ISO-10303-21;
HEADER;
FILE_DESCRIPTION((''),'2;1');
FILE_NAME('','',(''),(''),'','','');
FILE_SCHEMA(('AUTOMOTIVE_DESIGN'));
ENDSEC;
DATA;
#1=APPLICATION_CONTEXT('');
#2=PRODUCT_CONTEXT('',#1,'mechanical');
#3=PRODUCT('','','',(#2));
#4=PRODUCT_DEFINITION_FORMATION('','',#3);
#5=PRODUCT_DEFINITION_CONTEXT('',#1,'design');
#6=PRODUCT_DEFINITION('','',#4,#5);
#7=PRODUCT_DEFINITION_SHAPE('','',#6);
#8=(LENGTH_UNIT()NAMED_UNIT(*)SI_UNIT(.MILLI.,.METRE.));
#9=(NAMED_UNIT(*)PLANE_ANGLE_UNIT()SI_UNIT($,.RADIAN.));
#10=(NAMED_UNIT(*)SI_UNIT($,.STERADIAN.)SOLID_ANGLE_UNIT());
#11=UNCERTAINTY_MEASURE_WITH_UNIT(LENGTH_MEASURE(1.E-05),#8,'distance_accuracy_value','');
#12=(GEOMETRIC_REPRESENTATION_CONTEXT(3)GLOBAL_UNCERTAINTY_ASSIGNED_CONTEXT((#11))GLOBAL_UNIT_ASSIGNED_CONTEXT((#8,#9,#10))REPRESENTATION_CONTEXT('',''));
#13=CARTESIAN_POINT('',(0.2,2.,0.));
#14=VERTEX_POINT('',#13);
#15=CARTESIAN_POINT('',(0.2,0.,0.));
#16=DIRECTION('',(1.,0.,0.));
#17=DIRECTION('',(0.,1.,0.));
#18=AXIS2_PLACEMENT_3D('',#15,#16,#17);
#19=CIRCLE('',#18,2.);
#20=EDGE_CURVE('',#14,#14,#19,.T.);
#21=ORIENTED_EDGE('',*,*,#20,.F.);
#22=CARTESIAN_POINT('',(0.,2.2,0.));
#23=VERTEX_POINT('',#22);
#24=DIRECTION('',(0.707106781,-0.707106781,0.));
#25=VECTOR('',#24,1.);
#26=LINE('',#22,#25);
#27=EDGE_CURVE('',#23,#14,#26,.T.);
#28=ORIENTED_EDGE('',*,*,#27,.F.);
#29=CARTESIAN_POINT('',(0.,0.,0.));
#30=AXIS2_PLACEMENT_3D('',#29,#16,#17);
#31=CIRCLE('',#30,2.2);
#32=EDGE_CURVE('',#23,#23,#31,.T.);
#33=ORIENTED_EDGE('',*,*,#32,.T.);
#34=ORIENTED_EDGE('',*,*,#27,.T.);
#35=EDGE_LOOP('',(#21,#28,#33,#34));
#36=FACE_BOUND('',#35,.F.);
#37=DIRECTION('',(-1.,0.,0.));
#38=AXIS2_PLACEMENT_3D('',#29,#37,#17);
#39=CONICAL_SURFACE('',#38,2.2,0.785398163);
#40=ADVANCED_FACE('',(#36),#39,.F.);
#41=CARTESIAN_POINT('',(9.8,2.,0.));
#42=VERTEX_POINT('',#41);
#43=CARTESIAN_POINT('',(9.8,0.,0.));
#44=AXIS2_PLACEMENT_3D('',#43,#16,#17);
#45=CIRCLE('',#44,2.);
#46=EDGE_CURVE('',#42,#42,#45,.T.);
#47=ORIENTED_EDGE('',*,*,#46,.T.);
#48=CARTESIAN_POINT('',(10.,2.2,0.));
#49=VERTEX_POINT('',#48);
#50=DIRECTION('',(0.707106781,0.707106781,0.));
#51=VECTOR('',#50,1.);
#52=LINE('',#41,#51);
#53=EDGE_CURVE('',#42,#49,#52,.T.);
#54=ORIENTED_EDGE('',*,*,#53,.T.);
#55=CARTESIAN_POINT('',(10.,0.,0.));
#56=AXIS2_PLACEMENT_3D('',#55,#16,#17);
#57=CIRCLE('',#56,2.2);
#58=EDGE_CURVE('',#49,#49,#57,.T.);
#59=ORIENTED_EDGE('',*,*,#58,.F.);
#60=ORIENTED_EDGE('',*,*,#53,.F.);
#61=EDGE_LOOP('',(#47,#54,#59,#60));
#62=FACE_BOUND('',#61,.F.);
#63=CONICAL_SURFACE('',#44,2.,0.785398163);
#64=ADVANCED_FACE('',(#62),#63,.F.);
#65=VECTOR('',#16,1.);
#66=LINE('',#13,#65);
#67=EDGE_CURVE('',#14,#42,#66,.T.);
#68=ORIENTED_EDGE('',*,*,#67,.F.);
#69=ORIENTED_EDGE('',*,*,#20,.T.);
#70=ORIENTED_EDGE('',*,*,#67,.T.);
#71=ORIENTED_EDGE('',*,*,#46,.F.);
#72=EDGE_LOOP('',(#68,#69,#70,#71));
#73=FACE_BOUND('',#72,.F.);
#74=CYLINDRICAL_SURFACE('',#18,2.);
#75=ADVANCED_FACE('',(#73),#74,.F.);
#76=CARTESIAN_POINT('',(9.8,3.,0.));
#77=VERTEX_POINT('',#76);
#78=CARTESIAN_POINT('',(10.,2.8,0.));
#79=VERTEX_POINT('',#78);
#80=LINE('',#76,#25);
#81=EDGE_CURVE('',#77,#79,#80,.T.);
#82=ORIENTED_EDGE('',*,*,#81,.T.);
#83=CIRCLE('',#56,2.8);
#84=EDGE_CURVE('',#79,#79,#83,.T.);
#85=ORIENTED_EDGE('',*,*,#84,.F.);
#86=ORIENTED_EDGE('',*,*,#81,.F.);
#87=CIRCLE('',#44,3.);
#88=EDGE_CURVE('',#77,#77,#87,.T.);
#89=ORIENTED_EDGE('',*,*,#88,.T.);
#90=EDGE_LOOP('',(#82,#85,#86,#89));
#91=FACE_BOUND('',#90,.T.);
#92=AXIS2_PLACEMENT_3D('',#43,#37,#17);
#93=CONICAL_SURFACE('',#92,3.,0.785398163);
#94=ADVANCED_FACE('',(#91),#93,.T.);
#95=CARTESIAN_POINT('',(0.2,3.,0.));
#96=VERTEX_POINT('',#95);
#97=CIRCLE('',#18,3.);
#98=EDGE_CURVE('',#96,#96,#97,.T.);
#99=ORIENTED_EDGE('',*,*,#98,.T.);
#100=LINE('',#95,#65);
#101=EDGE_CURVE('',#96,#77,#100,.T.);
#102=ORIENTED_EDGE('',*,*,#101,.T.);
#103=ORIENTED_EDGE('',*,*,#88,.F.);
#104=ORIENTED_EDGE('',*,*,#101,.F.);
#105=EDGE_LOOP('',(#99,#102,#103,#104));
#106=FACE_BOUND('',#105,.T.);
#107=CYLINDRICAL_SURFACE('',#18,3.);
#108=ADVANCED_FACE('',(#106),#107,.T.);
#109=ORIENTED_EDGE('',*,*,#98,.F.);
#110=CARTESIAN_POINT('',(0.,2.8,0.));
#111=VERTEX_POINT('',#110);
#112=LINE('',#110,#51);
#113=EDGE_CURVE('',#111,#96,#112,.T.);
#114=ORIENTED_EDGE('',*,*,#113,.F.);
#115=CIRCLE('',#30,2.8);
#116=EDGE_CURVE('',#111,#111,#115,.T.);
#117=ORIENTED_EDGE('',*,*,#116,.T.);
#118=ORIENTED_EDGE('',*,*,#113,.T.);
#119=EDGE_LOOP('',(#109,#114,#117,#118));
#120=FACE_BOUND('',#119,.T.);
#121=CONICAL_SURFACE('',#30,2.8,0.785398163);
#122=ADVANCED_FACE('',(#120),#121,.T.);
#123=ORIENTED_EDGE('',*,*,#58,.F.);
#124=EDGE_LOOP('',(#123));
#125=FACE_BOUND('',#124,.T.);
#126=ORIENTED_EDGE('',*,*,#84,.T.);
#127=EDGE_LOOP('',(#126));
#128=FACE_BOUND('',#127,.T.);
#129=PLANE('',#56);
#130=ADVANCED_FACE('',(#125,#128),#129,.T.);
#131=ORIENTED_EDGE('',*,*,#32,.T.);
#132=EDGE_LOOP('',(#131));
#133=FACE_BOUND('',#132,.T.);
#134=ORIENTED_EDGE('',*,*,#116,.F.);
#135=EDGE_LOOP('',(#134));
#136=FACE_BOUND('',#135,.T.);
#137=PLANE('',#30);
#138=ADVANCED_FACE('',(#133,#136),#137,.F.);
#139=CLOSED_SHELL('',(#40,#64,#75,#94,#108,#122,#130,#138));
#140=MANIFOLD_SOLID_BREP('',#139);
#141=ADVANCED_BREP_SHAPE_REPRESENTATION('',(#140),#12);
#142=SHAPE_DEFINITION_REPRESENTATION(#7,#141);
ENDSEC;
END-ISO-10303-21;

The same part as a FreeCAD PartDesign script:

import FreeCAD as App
import Part
import Sketcher

doc = App.newDocument("Part")
params = doc.addObject("Spreadsheet::Sheet", "Params")
for row, (alias, value) in enumerate([
    ("sketch1_width", "10 mm"),
    ("sketch1_width2", "9.6 mm"),
    ("sketch1_height", "2.8 mm"),
    ("revolution_angle", "360 deg"),
    ("sketch2_width", "10 mm"),
    ("sketch2_width2", "9.6 mm"),
    ("sketch2_height", "2.2 mm"),
    ("groove_angle", "360 deg"),
], start=1):
    params.set(f"A{row}", alias)
    params.set(f"B{row}", "=" + value)
    params.setAlias(f"B{row}", alias)

body = doc.addObject("PartDesign::Body", "Body")

sketch1 = doc.addObject("Sketcher::SketchObject", "Sketch")
body.addObject(sketch1)
sketch1.AttachmentSupport = (doc.XY_Plane, [""])
sketch1.MapMode = "FlatFace"
sketch1.addGeometry([
    Part.LineSegment(App.Vector(0, 0, 0), App.Vector(10, 0, 0)),
    Part.LineSegment(App.Vector(10, 0, 0), App.Vector(10, 2.8, 0)),
    Part.LineSegment(App.Vector(10, 2.8, 0), App.Vector(9.8, 3, 0)),
    Part.LineSegment(App.Vector(9.8, 3, 0), App.Vector(0.2, 3, 0)),
    Part.LineSegment(App.Vector(0.2, 3, 0), App.Vector(0, 2.8, 0)),
    Part.LineSegment(App.Vector(0, 2.8, 0), App.Vector(0, 0, 0)),
], False)
sketch1.addConstraint([
    Sketcher.Constraint("Coincident", 0, 2, 1, 1),
    Sketcher.Constraint("Coincident", 1, 2, 2, 1),
    Sketcher.Constraint("Coincident", 2, 2, 3, 1),
    Sketcher.Constraint("Coincident", 3, 2, 4, 1),
    Sketcher.Constraint("Coincident", 4, 2, 5, 1),
    Sketcher.Constraint("Coincident", 5, 2, 0, 1),
    Sketcher.Constraint("Horizontal", 0),
    Sketcher.Constraint("Vertical", 1),
    Sketcher.Constraint("Horizontal", 3),
    Sketcher.Constraint("Vertical", 5),
    Sketcher.Constraint("Coincident", 5, 2, -1, 1),
    Sketcher.Constraint("Perpendicular", 2, 4),
    Sketcher.Constraint("Horizontal", 1, 2, 4, 2),
    Sketcher.Constraint("Equal", 2, 4),
    Sketcher.Constraint("DistanceX", 0, 1, 0, 2, 10.0),
    Sketcher.Constraint("DistanceX", 3, 2, 3, 1, 9.6),
    Sketcher.Constraint("DistanceY", 1, 1, 1, 2, 2.8),
])
sketch1.setExpression("Constraints[14]", "Params.sketch1_width")
sketch1.setExpression("Constraints[15]", "Params.sketch1_width2")
sketch1.setExpression("Constraints[16]", "Params.sketch1_height")
revolution = doc.addObject("PartDesign::Revolution", "Revolution")
body.addObject(revolution)
revolution.Profile = sketch1
revolution.ReferenceAxis = (sketch1, ["H_Axis"])
revolution.setExpression("Angle", "Params.revolution_angle")

sketch2 = doc.addObject("Sketcher::SketchObject", "Sketch001")
body.addObject(sketch2)
sketch2.AttachmentSupport = (doc.XY_Plane, [""])
sketch2.MapMode = "FlatFace"
sketch2.addGeometry([
    Part.LineSegment(App.Vector(0, 0, 0), App.Vector(10, 0, 0)),
    Part.LineSegment(App.Vector(10, 0, 0), App.Vector(10, 2.2, 0)),
    Part.LineSegment(App.Vector(10, 2.2, 0), App.Vector(9.8, 2, 0)),
    Part.LineSegment(App.Vector(9.8, 2, 0), App.Vector(0.2, 2, 0)),
    Part.LineSegment(App.Vector(0.2, 2, 0), App.Vector(0, 2.2, 0)),
    Part.LineSegment(App.Vector(0, 2.2, 0), App.Vector(0, 0, 0)),
], False)
sketch2.addConstraint([
    Sketcher.Constraint("Coincident", 0, 2, 1, 1),
    Sketcher.Constraint("Coincident", 1, 2, 2, 1),
    Sketcher.Constraint("Coincident", 2, 2, 3, 1),
    Sketcher.Constraint("Coincident", 3, 2, 4, 1),
    Sketcher.Constraint("Coincident", 4, 2, 5, 1),
    Sketcher.Constraint("Coincident", 5, 2, 0, 1),
    Sketcher.Constraint("Horizontal", 0),
    Sketcher.Constraint("Vertical", 1),
    Sketcher.Constraint("Horizontal", 3),
    Sketcher.Constraint("Vertical", 5),
    Sketcher.Constraint("Coincident", 5, 2, -1, 1),
    Sketcher.Constraint("Perpendicular", 2, 4),
    Sketcher.Constraint("Horizontal", 1, 2, 4, 2),
    Sketcher.Constraint("Equal", 2, 4),
    Sketcher.Constraint("DistanceX", 0, 1, 0, 2, 10.0),
    Sketcher.Constraint("DistanceX", 3, 2, 3, 1, 9.6),
    Sketcher.Constraint("DistanceY", 1, 1, 1, 2, 2.2),
])
sketch2.setExpression("Constraints[14]", "Params.sketch2_width")
sketch2.setExpression("Constraints[15]", "Params.sketch2_width2")
sketch2.setExpression("Constraints[16]", "Params.sketch2_height")
groove = doc.addObject("PartDesign::Groove", "Groove")
body.addObject(groove)
groove.Profile = sketch2
groove.ReferenceAxis = (sketch2, ["H_Axis"])
groove.setExpression("Angle", "Params.groove_angle")

doc.recompute()
